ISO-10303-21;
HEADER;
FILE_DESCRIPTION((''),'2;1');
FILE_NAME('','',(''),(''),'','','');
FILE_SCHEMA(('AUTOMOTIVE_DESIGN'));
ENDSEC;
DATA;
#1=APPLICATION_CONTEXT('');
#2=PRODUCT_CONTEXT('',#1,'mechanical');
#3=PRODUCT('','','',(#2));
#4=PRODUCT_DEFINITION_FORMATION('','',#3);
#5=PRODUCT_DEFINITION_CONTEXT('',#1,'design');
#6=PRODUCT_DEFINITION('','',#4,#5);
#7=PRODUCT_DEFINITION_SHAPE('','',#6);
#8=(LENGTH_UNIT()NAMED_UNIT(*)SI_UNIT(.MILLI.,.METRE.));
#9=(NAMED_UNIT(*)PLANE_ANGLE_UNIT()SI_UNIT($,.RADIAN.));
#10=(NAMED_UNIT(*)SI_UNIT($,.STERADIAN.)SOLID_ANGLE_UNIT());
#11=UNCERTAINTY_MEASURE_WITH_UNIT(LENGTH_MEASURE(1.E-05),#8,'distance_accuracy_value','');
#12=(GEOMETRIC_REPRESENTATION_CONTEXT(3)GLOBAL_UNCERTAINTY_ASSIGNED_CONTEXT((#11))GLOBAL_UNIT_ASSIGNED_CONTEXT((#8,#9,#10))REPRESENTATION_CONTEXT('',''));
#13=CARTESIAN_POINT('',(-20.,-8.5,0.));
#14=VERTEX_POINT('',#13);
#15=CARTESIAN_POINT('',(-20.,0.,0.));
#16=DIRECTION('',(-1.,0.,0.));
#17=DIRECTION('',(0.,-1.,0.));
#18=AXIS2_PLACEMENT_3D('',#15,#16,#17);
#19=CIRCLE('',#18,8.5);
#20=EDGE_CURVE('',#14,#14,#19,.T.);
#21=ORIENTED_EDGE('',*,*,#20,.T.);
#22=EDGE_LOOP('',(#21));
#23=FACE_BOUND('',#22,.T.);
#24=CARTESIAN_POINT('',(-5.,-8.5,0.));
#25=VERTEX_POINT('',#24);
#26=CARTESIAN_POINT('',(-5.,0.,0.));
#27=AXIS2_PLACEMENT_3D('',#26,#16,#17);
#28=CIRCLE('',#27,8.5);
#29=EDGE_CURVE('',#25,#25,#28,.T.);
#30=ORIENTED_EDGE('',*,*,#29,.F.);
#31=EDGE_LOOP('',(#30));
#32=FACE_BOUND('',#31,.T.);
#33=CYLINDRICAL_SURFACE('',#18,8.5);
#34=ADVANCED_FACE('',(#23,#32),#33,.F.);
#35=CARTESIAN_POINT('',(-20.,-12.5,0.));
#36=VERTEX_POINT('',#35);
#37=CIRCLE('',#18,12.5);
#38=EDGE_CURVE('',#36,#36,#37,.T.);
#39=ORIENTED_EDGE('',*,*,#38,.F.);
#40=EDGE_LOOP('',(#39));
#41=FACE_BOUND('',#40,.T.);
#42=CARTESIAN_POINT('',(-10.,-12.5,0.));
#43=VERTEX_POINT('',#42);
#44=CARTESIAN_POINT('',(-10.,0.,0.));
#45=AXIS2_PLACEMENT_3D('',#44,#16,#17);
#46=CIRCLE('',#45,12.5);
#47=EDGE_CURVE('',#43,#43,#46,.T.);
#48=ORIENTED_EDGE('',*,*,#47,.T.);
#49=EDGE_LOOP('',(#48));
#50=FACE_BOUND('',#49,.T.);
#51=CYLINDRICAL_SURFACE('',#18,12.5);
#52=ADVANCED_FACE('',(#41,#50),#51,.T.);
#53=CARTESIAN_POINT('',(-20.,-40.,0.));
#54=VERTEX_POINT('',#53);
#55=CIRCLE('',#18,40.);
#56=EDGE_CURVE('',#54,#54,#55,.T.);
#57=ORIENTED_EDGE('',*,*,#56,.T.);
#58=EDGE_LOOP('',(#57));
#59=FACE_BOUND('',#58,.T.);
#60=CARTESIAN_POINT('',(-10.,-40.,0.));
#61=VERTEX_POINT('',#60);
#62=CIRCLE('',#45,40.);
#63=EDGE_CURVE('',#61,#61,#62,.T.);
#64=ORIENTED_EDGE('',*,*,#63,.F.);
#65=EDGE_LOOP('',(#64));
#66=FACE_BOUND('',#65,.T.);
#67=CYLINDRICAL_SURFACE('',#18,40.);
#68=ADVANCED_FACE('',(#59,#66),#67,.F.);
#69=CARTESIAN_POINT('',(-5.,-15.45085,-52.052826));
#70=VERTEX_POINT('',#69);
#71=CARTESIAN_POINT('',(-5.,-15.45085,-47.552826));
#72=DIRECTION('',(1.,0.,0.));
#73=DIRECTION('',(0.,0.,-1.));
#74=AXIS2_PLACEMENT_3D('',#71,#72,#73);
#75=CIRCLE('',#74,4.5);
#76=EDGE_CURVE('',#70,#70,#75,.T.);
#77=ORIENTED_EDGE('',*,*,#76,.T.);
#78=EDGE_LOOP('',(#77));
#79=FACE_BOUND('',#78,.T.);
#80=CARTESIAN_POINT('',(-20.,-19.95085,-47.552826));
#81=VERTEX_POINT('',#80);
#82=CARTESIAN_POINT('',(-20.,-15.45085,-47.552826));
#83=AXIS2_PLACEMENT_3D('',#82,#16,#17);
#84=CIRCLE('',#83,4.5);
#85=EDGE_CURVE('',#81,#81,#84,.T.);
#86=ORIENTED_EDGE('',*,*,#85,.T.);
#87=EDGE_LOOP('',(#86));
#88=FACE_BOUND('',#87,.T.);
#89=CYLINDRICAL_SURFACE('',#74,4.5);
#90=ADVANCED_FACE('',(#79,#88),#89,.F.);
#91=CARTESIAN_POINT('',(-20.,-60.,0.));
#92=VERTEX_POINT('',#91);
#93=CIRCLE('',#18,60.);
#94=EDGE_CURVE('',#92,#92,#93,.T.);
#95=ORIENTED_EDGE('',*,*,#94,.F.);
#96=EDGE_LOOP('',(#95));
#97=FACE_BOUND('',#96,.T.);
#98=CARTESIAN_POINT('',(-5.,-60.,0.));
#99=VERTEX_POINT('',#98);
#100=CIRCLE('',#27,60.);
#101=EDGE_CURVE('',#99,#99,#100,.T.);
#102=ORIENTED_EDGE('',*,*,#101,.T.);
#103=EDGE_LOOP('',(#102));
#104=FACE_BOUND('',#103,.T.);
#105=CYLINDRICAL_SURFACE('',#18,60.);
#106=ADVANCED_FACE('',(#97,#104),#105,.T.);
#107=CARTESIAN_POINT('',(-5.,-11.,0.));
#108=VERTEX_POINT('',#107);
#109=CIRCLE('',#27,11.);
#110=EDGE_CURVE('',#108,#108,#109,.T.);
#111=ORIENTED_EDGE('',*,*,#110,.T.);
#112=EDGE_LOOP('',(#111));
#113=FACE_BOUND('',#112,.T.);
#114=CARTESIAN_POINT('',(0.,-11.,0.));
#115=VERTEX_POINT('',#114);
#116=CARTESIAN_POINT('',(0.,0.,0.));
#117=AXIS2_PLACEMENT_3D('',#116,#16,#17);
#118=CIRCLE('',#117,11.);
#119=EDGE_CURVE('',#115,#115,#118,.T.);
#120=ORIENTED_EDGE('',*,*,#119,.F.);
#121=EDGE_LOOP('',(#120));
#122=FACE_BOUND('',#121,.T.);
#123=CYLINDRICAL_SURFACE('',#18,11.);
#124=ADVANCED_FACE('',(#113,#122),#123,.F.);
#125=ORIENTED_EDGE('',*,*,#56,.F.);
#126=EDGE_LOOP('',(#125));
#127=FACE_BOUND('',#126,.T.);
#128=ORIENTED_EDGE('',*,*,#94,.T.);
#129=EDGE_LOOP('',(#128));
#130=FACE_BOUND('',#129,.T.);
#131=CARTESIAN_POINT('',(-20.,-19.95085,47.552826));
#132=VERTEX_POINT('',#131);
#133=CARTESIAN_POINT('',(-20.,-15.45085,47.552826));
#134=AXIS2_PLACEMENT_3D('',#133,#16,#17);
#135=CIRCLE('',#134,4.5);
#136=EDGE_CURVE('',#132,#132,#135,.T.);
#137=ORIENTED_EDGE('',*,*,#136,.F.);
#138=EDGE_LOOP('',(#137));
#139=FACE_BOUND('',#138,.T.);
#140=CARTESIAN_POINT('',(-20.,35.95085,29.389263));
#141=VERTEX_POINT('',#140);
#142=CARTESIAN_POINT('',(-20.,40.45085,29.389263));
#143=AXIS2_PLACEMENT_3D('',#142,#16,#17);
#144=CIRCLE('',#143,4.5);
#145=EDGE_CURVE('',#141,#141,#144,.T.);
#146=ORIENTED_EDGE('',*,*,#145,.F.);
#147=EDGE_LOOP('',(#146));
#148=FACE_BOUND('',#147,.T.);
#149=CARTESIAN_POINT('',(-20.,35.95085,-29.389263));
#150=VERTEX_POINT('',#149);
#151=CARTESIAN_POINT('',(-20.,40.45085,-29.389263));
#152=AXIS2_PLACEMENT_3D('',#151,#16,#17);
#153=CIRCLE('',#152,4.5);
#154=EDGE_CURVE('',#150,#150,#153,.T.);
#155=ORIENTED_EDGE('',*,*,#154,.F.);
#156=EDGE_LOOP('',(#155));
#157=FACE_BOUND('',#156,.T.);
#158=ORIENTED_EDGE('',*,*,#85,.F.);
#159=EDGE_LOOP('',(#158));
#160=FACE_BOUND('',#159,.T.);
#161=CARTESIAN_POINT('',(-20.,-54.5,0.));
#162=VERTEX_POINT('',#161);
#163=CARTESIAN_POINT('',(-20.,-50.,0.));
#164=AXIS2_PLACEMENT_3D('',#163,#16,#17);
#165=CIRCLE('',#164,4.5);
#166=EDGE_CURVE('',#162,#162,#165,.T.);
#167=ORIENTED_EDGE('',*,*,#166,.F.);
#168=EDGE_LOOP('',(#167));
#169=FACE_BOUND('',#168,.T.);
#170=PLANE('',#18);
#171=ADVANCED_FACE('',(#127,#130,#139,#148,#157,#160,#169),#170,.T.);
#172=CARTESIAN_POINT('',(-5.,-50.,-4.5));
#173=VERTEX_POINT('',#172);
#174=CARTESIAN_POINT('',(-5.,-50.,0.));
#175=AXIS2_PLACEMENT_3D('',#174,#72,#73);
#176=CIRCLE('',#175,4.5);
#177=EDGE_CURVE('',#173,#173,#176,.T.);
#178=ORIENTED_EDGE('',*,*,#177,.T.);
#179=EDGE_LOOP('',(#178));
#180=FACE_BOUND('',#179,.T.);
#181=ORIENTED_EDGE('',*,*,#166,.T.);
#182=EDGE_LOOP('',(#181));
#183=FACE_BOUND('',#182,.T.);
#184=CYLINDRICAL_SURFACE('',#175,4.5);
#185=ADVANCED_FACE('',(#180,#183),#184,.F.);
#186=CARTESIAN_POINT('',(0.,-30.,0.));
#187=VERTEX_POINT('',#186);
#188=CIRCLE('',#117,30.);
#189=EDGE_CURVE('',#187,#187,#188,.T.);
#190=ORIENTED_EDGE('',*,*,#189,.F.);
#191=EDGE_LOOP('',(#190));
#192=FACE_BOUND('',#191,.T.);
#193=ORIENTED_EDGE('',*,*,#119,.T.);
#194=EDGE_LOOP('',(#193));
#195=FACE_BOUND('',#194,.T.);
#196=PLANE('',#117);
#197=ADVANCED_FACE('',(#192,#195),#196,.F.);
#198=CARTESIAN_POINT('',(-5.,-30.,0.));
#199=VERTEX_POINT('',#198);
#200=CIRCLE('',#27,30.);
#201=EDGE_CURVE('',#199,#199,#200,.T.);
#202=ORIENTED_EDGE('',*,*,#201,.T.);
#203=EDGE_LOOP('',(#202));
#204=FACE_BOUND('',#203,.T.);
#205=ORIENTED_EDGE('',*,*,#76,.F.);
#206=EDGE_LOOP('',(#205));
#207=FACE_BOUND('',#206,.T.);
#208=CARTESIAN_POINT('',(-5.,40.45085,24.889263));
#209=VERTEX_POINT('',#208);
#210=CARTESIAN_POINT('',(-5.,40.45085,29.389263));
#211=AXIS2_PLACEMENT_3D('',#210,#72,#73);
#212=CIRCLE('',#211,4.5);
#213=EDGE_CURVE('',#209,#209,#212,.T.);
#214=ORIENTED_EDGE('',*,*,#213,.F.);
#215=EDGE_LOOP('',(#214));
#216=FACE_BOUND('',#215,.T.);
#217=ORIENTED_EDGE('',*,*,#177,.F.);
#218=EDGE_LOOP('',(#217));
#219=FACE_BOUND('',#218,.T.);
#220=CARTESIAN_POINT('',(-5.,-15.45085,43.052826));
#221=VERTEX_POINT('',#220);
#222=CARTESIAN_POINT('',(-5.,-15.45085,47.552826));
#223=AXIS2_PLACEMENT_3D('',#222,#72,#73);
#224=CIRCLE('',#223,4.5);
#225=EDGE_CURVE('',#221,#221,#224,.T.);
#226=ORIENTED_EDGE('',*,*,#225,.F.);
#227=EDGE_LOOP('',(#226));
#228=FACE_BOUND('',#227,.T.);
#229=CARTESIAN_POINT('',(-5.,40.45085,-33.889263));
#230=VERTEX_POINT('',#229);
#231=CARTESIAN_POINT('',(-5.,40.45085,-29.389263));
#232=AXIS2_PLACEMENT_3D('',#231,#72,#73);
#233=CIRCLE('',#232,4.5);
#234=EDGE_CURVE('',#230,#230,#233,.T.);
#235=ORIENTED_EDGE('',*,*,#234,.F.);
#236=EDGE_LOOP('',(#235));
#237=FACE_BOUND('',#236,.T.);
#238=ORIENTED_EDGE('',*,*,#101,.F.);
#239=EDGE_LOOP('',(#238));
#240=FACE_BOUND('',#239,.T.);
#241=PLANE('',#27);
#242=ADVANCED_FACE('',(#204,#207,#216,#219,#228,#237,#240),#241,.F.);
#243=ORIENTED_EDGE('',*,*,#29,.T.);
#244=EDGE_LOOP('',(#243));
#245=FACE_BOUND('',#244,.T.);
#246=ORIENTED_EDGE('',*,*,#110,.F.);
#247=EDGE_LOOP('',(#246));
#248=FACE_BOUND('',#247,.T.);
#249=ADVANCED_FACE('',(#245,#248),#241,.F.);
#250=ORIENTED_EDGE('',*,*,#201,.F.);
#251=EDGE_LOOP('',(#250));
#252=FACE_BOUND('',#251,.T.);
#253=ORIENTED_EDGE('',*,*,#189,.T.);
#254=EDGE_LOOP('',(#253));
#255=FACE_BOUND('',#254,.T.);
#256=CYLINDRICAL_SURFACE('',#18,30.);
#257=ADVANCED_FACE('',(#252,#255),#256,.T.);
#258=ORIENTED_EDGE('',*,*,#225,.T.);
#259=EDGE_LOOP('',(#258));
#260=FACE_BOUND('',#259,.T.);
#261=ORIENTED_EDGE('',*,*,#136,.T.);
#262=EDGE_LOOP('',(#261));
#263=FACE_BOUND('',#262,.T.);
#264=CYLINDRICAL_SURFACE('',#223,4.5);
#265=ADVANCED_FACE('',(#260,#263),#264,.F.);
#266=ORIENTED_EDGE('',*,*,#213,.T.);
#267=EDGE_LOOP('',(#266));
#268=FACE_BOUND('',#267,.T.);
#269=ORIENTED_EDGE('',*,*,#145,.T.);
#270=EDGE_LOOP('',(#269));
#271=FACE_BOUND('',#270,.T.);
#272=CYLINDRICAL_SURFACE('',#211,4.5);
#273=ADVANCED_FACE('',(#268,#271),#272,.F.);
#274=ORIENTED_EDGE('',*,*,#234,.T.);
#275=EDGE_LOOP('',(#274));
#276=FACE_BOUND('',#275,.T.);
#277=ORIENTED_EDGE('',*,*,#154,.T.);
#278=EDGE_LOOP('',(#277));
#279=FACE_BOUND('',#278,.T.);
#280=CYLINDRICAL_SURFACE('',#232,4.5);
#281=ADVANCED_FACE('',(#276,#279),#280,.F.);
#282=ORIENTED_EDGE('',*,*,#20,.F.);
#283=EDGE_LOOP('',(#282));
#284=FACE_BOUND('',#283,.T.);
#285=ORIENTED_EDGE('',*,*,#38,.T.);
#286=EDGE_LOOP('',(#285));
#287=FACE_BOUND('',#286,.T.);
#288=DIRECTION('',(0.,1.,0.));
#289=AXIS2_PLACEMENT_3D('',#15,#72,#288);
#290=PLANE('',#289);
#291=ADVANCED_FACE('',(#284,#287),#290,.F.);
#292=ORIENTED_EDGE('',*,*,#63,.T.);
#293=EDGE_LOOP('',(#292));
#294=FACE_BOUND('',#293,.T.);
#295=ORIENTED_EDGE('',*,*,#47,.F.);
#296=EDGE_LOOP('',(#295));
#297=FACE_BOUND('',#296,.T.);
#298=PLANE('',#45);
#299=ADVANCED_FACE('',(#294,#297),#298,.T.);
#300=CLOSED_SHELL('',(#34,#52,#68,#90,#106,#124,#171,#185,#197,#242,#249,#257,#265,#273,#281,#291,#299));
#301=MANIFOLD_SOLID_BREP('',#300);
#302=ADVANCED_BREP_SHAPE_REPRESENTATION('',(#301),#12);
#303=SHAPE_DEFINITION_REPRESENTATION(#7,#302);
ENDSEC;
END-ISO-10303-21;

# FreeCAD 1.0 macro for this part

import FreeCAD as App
import Part
import Sketcher
from FreeCAD import Vector
Q = App.Units.Quantity


def add_polygon(sketch, points):
    """Adds a closed chain of lines whose ends are joined by coincident constraints."""
    first, n = sketch.GeometryCount, len(points)
    for a, b in zip(points, points[1:] + points[:1]):
        sketch.addGeometry(Part.LineSegment(App.Vector(*a, 0), App.Vector(*b, 0)), False)
    for i in range(n):
        sketch.addConstraint(Sketcher.Constraint("Coincident", first + i, 2, first + (i + 1) % n, 1))

doc = App.newDocument("Part")
params = doc.addObject("Spreadsheet::Sheet", "Params")
for row, (alias, value) in enumerate([
    ("sketch1_width", "5 mm"),
    ("sketch1_width2", "15 mm"),
    ("sketch1_width3", "10 mm"),
    ("sketch1_height", "19 mm"),
    ("sketch1_height2", "30 mm"),
    ("revolution_angle", "360 deg"),
    ("sketch2_diameter", "9 mm"),
    ("hole_diameter", "9 mm"),
    ("hole_depth", "15 mm"),
], start=1):
    params.set(f"A{row}", alias)
    params.set(f"B{row}", "=" + value)
    params.setAlias(f"B{row}", alias)

body = doc.addObject("PartDesign::Body", "Body")

sketch1 = doc.addObject("Sketcher::SketchObject", "Sketch")
body.addObject(sketch1)
sketch1.AttachmentSupport = (doc.XY_Plane, [""])
sketch1.MapMode = "FlatFace"
add_polygon(sketch1, [(-5, 11), (0, 11), (0, 30), (-5, 30), (-5, 60), (-20, 60), (-20, 40), (-10, 40), (-10, 12.5), (-20, 12.5), (-20, 8.5), (-5, 8.5)])
sketch1.addConstraint([
    Sketcher.Constraint("Horizontal", 0),
    Sketcher.Constraint("Vertical", 1),
    Sketcher.Constraint("Horizontal", 2),
    Sketcher.Constraint("Vertical", 3),
    Sketcher.Constraint("Horizontal", 4),
    Sketcher.Constraint("Vertical", 5),
    Sketcher.Constraint("Horizontal", 6),
    Sketcher.Constraint("Vertical", 7),
    Sketcher.Constraint("Horizontal", 8),
    Sketcher.Constraint("Vertical", 9),
    Sketcher.Constraint("Horizontal", 10),
    Sketcher.Constraint("Vertical", 11),
    Sketcher.Constraint("PointOnObject", 0, 2, -2),
    Sketcher.Constraint("Vertical", 5, 2, 8, 2),
    Sketcher.Constraint("Vertical", 3, 2, 10, 2),
    Sketcher.Constraint("DistanceX", 0, 1, 0, 2, Q("5 mm")),
    Sketcher.Constraint("DistanceX", 4, 2, 4, 1, Q("15 mm")),
    Sketcher.Constraint("DistanceX", 6, 1, 6, 2, Q("10 mm")),
    Sketcher.Constraint("DistanceY", 1, 1, 1, 2, Q("19 mm")),
    Sketcher.Constraint("DistanceY", 3, 1, 3, 2, Q("30 mm")),
    Sketcher.Constraint("DistanceY", 5, 2, 5, 1, Q("20 mm")),
    Sketcher.Constraint("DistanceY", 9, 2, 9, 1, Q("4 mm")),
    Sketcher.Constraint("DistanceY", 7, 2, 7, 1, Q("27.5 mm")),
    Sketcher.Constraint("DistanceY", -1, 1, 0, 2, Q("11 mm")),
])
sketch1.setExpression("Constraints[27]", "Params.sketch1_width")
sketch1.setExpression("Constraints[28]", "Params.sketch1_width2")
sketch1.setExpression("Constraints[29]", "Params.sketch1_width3")
sketch1.setExpression("Constraints[30]", "Params.sketch1_height")
sketch1.setExpression("Constraints[31]", "Params.sketch1_height2")
revolution = doc.addObject("PartDesign::Revolution", "Revolution")
body.addObject(revolution)
revolution.Profile = sketch1
revolution.ReferenceAxis = (sketch1, ["H_Axis"])
revolution.setExpression("Angle", "Params.revolution_angle")

sketch2 = doc.addObject("Sketcher::SketchObject", "Sketch001")
body.addObject(sketch2)
sketch2.AttachmentSupport = (doc.YZ_Plane, [""])
sketch2.MapMode = "FlatFace"
sketch2.AttachmentOffset = App.Placement(Vector(0, 0, -5), App.Rotation())
sketch2.addGeometry(Part.Circle(Vector(-50, 0, 0), Vector(0, 0, 1), 4.5), False)
sketch2.addConstraint([
    Sketcher.Constraint("PointOnObject", 0, 3, -1),
    Sketcher.Constraint("Diameter", 0, Q("9 mm")),
    Sketcher.Constraint("DistanceX", 0, 3, -1, 1, Q("50 mm")),
])
sketch2.setExpression("Constraints[1]", "Params.sketch2_diameter")
doc.recompute()
hole = doc.addObject("PartDesign::Hole", "Hole")
body.addObject(hole)
hole.Profile = sketch2
hole.ThreadType = "None"
hole.setExpression("Diameter", "Params.hole_diameter")
hole.DepthType = "Dimension"
hole.setExpression("Depth", "Params.hole_depth")
hole.DrillPoint = "Flat"
doc.recompute()

polarpattern = doc.addObject("PartDesign::PolarPattern", "PolarPattern")
body.addObject(polarpattern)
polarpattern.Originals = [hole]
polarpattern.Axis = (doc.X_Axis, [""])
polarpattern.Angle = 360
polarpattern.Occurrences = 5
body.Tip = polarpattern

doc.recompute()
